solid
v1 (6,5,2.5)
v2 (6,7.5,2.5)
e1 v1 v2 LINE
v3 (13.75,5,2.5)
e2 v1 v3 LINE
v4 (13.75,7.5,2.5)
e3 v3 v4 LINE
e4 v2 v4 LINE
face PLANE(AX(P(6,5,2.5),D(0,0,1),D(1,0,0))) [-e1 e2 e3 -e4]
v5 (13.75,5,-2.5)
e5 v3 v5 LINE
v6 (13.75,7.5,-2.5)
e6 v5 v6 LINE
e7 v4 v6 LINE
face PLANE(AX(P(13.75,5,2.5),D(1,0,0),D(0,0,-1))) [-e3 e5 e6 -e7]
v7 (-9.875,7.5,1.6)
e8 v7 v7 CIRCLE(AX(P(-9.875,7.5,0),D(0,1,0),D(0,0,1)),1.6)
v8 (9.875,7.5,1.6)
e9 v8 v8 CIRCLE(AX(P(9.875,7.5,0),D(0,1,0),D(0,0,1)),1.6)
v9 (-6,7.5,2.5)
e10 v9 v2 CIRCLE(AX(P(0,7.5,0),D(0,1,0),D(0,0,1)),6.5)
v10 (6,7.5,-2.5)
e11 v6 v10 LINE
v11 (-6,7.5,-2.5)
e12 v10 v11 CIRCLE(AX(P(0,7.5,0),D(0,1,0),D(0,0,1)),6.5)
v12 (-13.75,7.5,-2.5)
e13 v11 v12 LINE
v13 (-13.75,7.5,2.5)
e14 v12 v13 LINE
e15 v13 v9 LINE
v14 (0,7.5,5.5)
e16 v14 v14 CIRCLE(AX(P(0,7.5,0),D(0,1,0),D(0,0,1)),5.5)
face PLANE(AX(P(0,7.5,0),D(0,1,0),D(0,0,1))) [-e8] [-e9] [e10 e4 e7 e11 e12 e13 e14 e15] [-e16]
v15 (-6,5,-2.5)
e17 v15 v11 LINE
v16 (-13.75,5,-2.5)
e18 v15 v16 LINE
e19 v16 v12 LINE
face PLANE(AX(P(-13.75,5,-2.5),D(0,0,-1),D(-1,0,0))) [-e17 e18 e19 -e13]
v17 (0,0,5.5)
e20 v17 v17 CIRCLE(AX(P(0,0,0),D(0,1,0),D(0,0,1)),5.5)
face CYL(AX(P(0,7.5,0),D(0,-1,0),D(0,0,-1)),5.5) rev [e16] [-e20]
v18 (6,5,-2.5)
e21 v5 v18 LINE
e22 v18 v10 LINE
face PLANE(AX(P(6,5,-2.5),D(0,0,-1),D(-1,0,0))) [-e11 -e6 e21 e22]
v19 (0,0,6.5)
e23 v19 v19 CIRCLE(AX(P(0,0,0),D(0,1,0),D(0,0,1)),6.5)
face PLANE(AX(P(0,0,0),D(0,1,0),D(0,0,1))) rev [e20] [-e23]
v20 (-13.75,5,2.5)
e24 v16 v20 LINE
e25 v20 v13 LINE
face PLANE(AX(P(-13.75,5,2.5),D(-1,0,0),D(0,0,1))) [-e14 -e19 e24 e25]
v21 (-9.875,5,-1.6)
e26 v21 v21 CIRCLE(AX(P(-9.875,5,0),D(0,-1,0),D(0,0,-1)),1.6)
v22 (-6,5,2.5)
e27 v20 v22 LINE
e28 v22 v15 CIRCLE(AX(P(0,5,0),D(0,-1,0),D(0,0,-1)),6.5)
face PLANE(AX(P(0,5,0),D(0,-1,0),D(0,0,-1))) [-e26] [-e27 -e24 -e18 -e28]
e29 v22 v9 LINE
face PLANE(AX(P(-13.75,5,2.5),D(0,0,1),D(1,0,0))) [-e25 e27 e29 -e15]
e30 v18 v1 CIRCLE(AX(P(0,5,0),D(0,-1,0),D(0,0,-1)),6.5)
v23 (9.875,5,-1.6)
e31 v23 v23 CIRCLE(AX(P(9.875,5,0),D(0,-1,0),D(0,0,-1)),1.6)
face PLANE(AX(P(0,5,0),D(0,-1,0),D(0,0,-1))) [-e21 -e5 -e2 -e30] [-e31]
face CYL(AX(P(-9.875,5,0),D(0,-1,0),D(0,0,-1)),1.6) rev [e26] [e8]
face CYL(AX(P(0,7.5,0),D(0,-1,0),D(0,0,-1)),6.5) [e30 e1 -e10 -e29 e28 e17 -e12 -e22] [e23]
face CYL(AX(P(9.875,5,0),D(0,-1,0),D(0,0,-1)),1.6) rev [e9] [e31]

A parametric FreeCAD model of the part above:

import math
import FreeCAD as App
import Part
import Sketcher
Q = App.Units.Quantity

doc = App.newDocument("Part")
params = doc.addObject("Spreadsheet::Sheet", "Params")
for row, (alias, value) in enumerate([
    ("sketch1_diameter", "13 mm"),
    ("sketch1_diameter2", "11 mm"),
    ("pad1_length", "7.5 mm"),
    ("sketch2_radius", "6.5 mm"),
    ("sketch2_height", "5 mm"),
    ("sketch2_width", "7.75 mm"),
    ("pad2_length", "2.5 mm"),
    ("sketch3_diameter", "3.2 mm"),
    ("hole_diameter", "3.2 mm"),
    ("hole_depth", "5 mm"),
], start=1):
    params.set(f"A{row}", alias)
    params.set(f"B{row}", "=" + value)
    params.setAlias(f"B{row}", alias)

body = doc.addObject("PartDesign::Body", "Body")

# Sketch on XZ plane
sketch1 = body.newObject("Sketcher::SketchObject", "Sketch")
sketch1.AttachmentSupport = (doc.getObject("XZ_Plane"), [""])
sketch1.MapMode = "FlatFace"
sketch1.addGeometry([
    Part.Circle(App.Vector(0, 0, 0), App.Vector(0, 0, 1), 6.5),
    Part.Circle(App.Vector(0, 0, 0), App.Vector(0, 0, 1), 5.5),
], False)
sketch1.addConstraint([
    Sketcher.Constraint("Coincident", 0, 3, -1, 1),
    Sketcher.Constraint("Coincident", 1, 3, -1, 1),
    Sketcher.Constraint("Diameter", 0, Q("13 mm")),
    Sketcher.Constraint("Diameter", 1, Q("11 mm")),
])
sketch1.setExpression("Constraints[2]", "Params.sketch1_diameter")
sketch1.setExpression("Constraints[3]", "Params.sketch1_diameter2")
pad1 = body.newObject("PartDesign::Pad", "Pad")
pad1.Profile = sketch1
pad1.setExpression("Length", "Params.pad1_length")
pad1.Reversed = True

# Sketch on XZ plane
sketch2 = body.newObject("Sketcher::SketchObject", "Sketch001")
sketch2.AttachmentSupport = (doc.getObject("XZ_Plane"), [""])
sketch2.MapMode = "FlatFace"
sketch2.AttachmentOffset = App.Placement(App.Vector(0, 0, -5), App.Rotation())
sketch2.addGeometry([
    Part.LineSegment(App.Vector(-6, -2.5, 0), App.Vector(-13.75, -2.5, 0)),  # 0
    Part.LineSegment(App.Vector(-13.75, -2.5, 0), App.Vector(-13.75, 2.5, 0)),  # 1
    Part.LineSegment(App.Vector(-13.75, 2.5, 0), App.Vector(-6, 2.5, 0)),  # 2
    Part.ArcOfCircle(Part.Circle(App.Vector(0, 0, 0), App.Vector(0, 0, 1), 6.5), math.radians(157.380135), math.radians(202.619865)),  # 3
    Part.LineSegment(App.Vector(13.75, 2.5, 0), App.Vector(13.75, -2.5, 0)),  # 4
    Part.LineSegment(App.Vector(13.75, -2.5, 0), App.Vector(6, -2.5, 0)),  # 5
    Part.ArcOfCircle(Part.Circle(App.Vector(0, 0, 0), App.Vector(0, 0, 1), 6.5), math.radians(-22.619865), math.radians(22.619865)),  # 6
    Part.LineSegment(App.Vector(6, 2.5, 0), App.Vector(13.75, 2.5, 0)),  # 7
], False)
sketch2.addConstraint([
    Sketcher.Constraint("Coincident", 0, 2, 1, 1),
    Sketcher.Constraint("Coincident", 1, 2, 2, 1),
    Sketcher.Constraint("Coincident", 2, 2, 3, 1),
    Sketcher.Constraint("Coincident", 3, 2, 0, 1),
    Sketcher.Constraint("Coincident", 4, 2, 5, 1),
    Sketcher.Constraint("Coincident", 5, 2, 6, 1),
    Sketcher.Constraint("Coincident", 6, 2, 7, 1),
    Sketcher.Constraint("Coincident", 7, 2, 4, 1),
    Sketcher.Constraint("Horizontal", 0),
    Sketcher.Constraint("Vertical", 1),
    Sketcher.Constraint("Horizontal", 2),
    Sketcher.Constraint("Vertical", 4),
    Sketcher.Constraint("Horizontal", 5),
    Sketcher.Constraint("Horizontal", 7),
    Sketcher.Constraint("Coincident", 3, 3, -1, 1),
    Sketcher.Constraint("Coincident", 6, 3, -1, 1),
    Sketcher.Constraint("Equal", 3, 6),
    Sketcher.Constraint("Symmetric", 1, 2, 4, 2, -1, 1),
    Sketcher.Constraint("Horizontal", 3, 2, 4, 2),
    Sketcher.Constraint("Horizontal", 2, 2, 6, 2),
    Sketcher.Constraint("Radius", 3, Q("6.5 mm")),
    Sketcher.Constraint("DistanceY", 1, 1, 1, 2, Q("5 mm")),
    Sketcher.Constraint("DistanceX", 0, 2, 0, 1, Q("7.75 mm")),
])
sketch2.setExpression("Constraints[20]", "Params.sketch2_radius")
sketch2.setExpression("Constraints[21]", "Params.sketch2_height")
sketch2.setExpression("Constraints[22]", "Params.sketch2_width")
pad2 = body.newObject("PartDesign::Pad", "Pad001")
pad2.Profile = sketch2
pad2.setExpression("Length", "Params.pad2_length")
pad2.Reversed = True

# Sketch on XZ plane
sketch3 = body.newObject("Sketcher::SketchObject", "Sketch002")
sketch3.AttachmentSupport = (doc.getObject("XZ_Plane"), [""])
sketch3.MapMode = "FlatFace"
sketch3.AttachmentOffset = App.Placement(App.Vector(0, 0, -5), App.Rotation())
sketch3.addGeometry([
    Part.Circle(App.Vector(9.875, 0, 0), App.Vector(0, 0, 1), 1.6),
    Part.Circle(App.Vector(-9.875, 0, 0), App.Vector(0, 0, 1), 1.6),
], False)
sketch3.addConstraint([
    Sketcher.Constraint("Equal", 0, 1),
    Sketcher.Constraint("Symmetric", 0, 3, 1, 3, -1, 1),
    Sketcher.Constraint("PointOnObject", 0, 3, -1),
    Sketcher.Constraint("Diameter", 0, Q("3.2 mm")),
    Sketcher.Constraint("DistanceX", 1, 3, 0, 3, Q("19.75 mm")),
])
sketch3.setExpression("Constraints[3]", "Params.sketch3_diameter")
doc.recompute()
hole = body.newObject("PartDesign::Hole", "Hole")
hole.Profile = sketch3
hole.ThreadType = "None"
hole.setExpression("Diameter", "Params.hole_diameter")
hole.DepthType = "Dimension"
hole.setExpression("Depth", "Params.hole_depth")
hole.DrillPoint = "Angled"
hole.DrillPointAngle = 118

doc.recompute()
